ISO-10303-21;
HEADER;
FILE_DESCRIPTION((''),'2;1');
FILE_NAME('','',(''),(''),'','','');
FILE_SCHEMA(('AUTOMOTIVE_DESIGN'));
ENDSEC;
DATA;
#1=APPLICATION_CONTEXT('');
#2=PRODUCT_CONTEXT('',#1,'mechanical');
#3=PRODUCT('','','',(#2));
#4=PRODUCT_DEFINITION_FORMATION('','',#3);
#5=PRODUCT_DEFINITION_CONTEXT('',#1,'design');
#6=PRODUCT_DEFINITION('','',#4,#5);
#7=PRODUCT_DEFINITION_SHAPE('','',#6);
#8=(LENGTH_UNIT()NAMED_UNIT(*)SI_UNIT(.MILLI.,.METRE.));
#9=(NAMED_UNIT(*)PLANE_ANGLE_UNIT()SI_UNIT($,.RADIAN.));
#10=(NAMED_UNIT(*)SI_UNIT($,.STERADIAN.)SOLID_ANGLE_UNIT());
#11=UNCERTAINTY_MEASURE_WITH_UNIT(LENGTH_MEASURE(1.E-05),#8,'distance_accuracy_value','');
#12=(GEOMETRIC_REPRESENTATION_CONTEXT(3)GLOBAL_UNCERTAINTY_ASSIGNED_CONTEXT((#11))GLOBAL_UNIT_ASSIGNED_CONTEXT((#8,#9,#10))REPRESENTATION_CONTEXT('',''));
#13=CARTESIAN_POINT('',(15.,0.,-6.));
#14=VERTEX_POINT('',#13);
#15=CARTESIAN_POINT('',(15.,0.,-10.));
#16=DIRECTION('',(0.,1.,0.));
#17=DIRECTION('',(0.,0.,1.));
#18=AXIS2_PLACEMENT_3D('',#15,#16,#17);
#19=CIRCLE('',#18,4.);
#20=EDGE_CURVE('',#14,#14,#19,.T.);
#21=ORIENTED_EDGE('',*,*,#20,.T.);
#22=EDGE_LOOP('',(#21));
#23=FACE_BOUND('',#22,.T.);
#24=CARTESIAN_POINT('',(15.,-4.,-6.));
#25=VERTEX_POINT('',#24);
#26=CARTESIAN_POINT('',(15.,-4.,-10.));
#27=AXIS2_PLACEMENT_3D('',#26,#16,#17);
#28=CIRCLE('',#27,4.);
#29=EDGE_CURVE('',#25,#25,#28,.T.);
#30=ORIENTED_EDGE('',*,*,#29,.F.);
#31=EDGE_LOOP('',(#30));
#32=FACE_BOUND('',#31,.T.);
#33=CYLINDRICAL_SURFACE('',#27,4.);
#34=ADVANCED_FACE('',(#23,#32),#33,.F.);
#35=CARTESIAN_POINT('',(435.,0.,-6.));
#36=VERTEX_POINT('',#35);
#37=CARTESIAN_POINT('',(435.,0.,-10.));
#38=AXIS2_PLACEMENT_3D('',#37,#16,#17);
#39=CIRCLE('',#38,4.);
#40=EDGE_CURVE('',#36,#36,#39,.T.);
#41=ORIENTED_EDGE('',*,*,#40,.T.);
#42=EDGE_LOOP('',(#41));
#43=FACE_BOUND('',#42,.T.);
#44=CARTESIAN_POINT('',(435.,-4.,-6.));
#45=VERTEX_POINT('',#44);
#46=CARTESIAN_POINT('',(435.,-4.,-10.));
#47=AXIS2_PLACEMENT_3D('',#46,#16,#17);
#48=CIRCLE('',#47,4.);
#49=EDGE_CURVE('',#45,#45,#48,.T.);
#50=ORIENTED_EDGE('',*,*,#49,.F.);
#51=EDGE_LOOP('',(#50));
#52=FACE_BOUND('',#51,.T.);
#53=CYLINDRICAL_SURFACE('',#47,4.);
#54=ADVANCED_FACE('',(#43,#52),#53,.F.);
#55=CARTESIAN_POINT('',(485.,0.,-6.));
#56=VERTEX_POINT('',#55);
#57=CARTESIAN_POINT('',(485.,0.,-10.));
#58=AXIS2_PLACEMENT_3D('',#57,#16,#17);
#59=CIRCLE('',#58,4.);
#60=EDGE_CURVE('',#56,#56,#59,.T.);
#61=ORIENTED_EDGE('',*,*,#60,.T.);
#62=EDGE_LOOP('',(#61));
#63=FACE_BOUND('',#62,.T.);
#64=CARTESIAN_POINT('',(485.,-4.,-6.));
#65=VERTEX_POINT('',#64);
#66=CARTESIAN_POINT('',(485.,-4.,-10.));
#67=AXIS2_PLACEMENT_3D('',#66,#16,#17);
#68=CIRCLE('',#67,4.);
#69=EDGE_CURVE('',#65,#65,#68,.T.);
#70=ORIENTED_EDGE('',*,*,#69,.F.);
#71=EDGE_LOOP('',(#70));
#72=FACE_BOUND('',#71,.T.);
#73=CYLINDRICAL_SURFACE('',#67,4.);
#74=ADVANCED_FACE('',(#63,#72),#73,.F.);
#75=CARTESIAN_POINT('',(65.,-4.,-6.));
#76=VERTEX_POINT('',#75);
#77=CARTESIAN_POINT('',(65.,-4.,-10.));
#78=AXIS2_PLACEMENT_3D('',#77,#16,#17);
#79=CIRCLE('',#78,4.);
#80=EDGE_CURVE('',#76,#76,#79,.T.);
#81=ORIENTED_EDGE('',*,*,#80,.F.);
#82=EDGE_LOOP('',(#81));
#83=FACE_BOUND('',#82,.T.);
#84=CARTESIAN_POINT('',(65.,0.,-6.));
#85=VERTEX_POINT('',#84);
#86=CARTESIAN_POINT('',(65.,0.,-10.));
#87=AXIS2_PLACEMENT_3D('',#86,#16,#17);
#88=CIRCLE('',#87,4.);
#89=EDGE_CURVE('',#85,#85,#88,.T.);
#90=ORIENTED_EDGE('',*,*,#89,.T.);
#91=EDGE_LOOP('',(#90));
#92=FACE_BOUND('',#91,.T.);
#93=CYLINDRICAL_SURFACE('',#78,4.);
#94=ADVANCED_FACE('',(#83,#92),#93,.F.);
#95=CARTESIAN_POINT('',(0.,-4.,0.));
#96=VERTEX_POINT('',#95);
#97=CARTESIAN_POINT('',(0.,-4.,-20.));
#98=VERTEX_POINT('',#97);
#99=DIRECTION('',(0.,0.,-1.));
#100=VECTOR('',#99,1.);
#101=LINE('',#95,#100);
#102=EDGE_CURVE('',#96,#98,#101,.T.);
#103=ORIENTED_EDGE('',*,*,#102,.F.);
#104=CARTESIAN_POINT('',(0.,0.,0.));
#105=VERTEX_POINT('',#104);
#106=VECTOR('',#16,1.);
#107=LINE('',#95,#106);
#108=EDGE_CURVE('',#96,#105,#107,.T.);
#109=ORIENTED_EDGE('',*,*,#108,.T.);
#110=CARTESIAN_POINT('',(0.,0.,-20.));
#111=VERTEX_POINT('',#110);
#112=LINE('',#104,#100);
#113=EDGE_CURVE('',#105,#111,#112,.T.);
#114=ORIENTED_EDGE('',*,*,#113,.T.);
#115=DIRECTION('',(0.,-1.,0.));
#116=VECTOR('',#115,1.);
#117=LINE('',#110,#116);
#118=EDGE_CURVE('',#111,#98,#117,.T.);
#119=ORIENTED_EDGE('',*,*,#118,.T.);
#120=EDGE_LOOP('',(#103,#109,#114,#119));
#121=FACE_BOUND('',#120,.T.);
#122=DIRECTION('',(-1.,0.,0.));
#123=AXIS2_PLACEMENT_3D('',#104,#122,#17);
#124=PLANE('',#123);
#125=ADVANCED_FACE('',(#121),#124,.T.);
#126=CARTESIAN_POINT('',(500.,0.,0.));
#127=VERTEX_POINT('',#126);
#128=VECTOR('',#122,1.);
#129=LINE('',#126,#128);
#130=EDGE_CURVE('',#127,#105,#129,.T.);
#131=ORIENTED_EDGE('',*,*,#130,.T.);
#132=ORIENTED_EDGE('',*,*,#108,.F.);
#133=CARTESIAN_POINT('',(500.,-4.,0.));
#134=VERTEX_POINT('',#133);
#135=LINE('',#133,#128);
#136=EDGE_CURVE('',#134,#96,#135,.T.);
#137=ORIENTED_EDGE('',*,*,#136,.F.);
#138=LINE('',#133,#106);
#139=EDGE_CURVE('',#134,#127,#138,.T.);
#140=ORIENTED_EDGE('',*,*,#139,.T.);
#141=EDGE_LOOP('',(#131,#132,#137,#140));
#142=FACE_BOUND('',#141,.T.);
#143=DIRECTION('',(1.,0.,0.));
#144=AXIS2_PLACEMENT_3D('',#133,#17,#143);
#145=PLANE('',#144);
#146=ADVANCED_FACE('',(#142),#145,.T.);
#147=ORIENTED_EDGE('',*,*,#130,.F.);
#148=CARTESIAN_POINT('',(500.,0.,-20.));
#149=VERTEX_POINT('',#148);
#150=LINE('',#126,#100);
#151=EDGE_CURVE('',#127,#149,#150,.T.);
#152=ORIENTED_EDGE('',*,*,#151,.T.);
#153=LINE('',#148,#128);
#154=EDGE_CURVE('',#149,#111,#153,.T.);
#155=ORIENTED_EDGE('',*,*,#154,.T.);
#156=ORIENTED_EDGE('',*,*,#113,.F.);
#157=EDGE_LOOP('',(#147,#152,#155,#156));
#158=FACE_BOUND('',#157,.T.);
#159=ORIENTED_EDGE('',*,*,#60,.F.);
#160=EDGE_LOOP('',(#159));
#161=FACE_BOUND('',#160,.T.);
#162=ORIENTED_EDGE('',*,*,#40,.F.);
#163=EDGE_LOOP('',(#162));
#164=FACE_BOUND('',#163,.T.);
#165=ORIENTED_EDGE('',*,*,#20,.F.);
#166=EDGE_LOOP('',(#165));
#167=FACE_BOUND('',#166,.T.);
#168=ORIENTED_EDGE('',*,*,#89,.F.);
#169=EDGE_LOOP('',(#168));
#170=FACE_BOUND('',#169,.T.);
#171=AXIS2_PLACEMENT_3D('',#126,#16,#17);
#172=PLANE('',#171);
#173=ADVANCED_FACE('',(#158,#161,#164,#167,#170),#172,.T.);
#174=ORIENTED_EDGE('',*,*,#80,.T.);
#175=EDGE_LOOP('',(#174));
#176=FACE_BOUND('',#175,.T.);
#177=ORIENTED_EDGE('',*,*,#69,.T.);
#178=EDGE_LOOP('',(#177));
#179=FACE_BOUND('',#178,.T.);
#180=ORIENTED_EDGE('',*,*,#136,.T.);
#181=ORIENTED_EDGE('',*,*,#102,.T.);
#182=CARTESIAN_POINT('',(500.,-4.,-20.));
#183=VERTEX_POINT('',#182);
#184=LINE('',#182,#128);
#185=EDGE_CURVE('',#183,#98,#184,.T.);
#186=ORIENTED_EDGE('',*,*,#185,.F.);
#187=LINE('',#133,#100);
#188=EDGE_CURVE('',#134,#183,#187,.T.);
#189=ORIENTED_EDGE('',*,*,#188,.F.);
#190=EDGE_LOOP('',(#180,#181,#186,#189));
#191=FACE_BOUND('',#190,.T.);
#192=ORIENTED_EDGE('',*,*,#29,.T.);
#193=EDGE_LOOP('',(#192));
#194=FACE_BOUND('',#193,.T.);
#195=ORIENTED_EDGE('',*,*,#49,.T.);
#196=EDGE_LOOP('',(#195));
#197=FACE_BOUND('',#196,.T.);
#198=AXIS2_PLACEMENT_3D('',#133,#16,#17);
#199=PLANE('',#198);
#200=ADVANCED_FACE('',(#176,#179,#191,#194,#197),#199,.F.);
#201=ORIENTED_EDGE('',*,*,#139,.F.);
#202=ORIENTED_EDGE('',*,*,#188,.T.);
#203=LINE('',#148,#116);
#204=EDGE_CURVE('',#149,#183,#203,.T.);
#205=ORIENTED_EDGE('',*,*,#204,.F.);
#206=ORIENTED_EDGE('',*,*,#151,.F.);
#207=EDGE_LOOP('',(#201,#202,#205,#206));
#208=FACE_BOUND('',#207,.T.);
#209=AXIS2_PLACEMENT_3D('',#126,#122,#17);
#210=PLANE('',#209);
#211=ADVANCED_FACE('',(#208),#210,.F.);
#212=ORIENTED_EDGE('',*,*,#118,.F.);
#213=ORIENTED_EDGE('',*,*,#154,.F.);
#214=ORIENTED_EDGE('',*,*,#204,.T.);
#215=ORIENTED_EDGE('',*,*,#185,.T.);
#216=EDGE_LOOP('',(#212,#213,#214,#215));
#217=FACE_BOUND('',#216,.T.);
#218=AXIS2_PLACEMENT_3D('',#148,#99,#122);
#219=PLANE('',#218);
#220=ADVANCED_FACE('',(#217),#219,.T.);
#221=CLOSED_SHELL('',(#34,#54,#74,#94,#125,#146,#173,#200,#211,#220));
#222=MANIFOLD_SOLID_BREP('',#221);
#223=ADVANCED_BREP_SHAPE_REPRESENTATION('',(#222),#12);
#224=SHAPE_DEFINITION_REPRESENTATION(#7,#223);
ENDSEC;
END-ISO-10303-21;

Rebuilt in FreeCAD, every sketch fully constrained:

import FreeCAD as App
import Part
import Sketcher
from FreeCAD import Vector
Q = App.Units.Quantity

doc = App.newDocument("Part")
body = doc.addObject("PartDesign::Body", "Body")

# Sketch on YZ plane
sketch1 = body.newObject("Sketcher::SketchObject", "Sketch")
sketch1.AttachmentSupport = (doc.getObject("YZ_Plane"), [""])
sketch1.MapMode = "FlatFace"
sketch1.addGeometry([
    Part.LineSegment(Vector(0, 0, 0), Vector(-4, 0, 0)),
    Part.LineSegment(Vector(-4, 0, 0), Vector(-4, -20, 0)),
    Part.LineSegment(Vector(-4, -20, 0), Vector(0, -20, 0)),
    Part.LineSegment(Vector(0, -20, 0), Vector(0, 0, 0)),
], False)
sketch1.addConstraint([
    Sketcher.Constraint("Coincident", 0, 2, 1, 1),
    Sketcher.Constraint("Coincident", 1, 2, 2, 1),
    Sketcher.Constraint("Coincident", 2, 2, 3, 1),
    Sketcher.Constraint("Coincident", 3, 2, 0, 1),
    Sketcher.Constraint("Horizontal", 0),
    Sketcher.Constraint("Vertical", 1),
    Sketcher.Constraint("Horizontal", 2),
    Sketcher.Constraint("Vertical", 3),
    Sketcher.Constraint("Coincident", 3, 2, -1, 1),
    Sketcher.Constraint("DistanceX", 0, 2, 0, 1, Q("4 mm")),
    Sketcher.Constraint("DistanceY", 1, 2, 1, 1, Q("20 mm")),
])
pad1 = body.newObject("PartDesign::Pad", "Pad")
pad1.Profile = sketch1
pad1.Length = 500

# Sketch on XZ plane
sketch2 = body.newObject("Sketcher::SketchObject", "Sketch001")
sketch2.AttachmentSupport = (doc.getObject("XZ_Plane"), [""])
sketch2.MapMode = "FlatFace"
sketch2.addGeometry([
    Part.Circle(Vector(15, -10, 0), Vector(0, 0, 1), 4),
    Part.Circle(Vector(65, -10, 0), Vector(0, 0, 1), 4),
    Part.Circle(Vector(435, -10, 0), Vector(0, 0, 1), 4),
    Part.Circle(Vector(485, -10, 0), Vector(0, 0, 1), 4),
], False)
sketch2.addConstraint([
    Sketcher.Constraint("Equal", 0, 1),
    Sketcher.Constraint("Equal", 1, 2),
    Sketcher.Constraint("Equal", 2, 3),
    Sketcher.Constraint("Horizontal", 0, 3, 1, 3),
    Sketcher.Constraint("Horizontal", 1, 3, 2, 3),
    Sketcher.Constraint("Horizontal", 2, 3, 3, 3),
    Sketcher.Constraint("Diameter", 0, Q("8 mm")),
    Sketcher.Constraint("DistanceX", -1, 1, 0, 3, Q("15 mm")),
    Sketcher.Constraint("DistanceY", 0, 3, -1, 1, Q("10 mm")),
    Sketcher.Constraint("DistanceX", -1, 1, 1, 3, Q("65 mm")),
    Sketcher.Constraint("DistanceX", -1, 1, 2, 3, Q("435 mm")),
    Sketcher.Constraint("DistanceX", -1, 1, 3, 3, Q("485 mm")),
])
pocket1 = body.newObject("PartDesign::Pocket", "Pocket")
pocket1.Profile = sketch2
pocket1.Type = "ThroughAll"
pocket1.Reversed = True

doc.recompute()
